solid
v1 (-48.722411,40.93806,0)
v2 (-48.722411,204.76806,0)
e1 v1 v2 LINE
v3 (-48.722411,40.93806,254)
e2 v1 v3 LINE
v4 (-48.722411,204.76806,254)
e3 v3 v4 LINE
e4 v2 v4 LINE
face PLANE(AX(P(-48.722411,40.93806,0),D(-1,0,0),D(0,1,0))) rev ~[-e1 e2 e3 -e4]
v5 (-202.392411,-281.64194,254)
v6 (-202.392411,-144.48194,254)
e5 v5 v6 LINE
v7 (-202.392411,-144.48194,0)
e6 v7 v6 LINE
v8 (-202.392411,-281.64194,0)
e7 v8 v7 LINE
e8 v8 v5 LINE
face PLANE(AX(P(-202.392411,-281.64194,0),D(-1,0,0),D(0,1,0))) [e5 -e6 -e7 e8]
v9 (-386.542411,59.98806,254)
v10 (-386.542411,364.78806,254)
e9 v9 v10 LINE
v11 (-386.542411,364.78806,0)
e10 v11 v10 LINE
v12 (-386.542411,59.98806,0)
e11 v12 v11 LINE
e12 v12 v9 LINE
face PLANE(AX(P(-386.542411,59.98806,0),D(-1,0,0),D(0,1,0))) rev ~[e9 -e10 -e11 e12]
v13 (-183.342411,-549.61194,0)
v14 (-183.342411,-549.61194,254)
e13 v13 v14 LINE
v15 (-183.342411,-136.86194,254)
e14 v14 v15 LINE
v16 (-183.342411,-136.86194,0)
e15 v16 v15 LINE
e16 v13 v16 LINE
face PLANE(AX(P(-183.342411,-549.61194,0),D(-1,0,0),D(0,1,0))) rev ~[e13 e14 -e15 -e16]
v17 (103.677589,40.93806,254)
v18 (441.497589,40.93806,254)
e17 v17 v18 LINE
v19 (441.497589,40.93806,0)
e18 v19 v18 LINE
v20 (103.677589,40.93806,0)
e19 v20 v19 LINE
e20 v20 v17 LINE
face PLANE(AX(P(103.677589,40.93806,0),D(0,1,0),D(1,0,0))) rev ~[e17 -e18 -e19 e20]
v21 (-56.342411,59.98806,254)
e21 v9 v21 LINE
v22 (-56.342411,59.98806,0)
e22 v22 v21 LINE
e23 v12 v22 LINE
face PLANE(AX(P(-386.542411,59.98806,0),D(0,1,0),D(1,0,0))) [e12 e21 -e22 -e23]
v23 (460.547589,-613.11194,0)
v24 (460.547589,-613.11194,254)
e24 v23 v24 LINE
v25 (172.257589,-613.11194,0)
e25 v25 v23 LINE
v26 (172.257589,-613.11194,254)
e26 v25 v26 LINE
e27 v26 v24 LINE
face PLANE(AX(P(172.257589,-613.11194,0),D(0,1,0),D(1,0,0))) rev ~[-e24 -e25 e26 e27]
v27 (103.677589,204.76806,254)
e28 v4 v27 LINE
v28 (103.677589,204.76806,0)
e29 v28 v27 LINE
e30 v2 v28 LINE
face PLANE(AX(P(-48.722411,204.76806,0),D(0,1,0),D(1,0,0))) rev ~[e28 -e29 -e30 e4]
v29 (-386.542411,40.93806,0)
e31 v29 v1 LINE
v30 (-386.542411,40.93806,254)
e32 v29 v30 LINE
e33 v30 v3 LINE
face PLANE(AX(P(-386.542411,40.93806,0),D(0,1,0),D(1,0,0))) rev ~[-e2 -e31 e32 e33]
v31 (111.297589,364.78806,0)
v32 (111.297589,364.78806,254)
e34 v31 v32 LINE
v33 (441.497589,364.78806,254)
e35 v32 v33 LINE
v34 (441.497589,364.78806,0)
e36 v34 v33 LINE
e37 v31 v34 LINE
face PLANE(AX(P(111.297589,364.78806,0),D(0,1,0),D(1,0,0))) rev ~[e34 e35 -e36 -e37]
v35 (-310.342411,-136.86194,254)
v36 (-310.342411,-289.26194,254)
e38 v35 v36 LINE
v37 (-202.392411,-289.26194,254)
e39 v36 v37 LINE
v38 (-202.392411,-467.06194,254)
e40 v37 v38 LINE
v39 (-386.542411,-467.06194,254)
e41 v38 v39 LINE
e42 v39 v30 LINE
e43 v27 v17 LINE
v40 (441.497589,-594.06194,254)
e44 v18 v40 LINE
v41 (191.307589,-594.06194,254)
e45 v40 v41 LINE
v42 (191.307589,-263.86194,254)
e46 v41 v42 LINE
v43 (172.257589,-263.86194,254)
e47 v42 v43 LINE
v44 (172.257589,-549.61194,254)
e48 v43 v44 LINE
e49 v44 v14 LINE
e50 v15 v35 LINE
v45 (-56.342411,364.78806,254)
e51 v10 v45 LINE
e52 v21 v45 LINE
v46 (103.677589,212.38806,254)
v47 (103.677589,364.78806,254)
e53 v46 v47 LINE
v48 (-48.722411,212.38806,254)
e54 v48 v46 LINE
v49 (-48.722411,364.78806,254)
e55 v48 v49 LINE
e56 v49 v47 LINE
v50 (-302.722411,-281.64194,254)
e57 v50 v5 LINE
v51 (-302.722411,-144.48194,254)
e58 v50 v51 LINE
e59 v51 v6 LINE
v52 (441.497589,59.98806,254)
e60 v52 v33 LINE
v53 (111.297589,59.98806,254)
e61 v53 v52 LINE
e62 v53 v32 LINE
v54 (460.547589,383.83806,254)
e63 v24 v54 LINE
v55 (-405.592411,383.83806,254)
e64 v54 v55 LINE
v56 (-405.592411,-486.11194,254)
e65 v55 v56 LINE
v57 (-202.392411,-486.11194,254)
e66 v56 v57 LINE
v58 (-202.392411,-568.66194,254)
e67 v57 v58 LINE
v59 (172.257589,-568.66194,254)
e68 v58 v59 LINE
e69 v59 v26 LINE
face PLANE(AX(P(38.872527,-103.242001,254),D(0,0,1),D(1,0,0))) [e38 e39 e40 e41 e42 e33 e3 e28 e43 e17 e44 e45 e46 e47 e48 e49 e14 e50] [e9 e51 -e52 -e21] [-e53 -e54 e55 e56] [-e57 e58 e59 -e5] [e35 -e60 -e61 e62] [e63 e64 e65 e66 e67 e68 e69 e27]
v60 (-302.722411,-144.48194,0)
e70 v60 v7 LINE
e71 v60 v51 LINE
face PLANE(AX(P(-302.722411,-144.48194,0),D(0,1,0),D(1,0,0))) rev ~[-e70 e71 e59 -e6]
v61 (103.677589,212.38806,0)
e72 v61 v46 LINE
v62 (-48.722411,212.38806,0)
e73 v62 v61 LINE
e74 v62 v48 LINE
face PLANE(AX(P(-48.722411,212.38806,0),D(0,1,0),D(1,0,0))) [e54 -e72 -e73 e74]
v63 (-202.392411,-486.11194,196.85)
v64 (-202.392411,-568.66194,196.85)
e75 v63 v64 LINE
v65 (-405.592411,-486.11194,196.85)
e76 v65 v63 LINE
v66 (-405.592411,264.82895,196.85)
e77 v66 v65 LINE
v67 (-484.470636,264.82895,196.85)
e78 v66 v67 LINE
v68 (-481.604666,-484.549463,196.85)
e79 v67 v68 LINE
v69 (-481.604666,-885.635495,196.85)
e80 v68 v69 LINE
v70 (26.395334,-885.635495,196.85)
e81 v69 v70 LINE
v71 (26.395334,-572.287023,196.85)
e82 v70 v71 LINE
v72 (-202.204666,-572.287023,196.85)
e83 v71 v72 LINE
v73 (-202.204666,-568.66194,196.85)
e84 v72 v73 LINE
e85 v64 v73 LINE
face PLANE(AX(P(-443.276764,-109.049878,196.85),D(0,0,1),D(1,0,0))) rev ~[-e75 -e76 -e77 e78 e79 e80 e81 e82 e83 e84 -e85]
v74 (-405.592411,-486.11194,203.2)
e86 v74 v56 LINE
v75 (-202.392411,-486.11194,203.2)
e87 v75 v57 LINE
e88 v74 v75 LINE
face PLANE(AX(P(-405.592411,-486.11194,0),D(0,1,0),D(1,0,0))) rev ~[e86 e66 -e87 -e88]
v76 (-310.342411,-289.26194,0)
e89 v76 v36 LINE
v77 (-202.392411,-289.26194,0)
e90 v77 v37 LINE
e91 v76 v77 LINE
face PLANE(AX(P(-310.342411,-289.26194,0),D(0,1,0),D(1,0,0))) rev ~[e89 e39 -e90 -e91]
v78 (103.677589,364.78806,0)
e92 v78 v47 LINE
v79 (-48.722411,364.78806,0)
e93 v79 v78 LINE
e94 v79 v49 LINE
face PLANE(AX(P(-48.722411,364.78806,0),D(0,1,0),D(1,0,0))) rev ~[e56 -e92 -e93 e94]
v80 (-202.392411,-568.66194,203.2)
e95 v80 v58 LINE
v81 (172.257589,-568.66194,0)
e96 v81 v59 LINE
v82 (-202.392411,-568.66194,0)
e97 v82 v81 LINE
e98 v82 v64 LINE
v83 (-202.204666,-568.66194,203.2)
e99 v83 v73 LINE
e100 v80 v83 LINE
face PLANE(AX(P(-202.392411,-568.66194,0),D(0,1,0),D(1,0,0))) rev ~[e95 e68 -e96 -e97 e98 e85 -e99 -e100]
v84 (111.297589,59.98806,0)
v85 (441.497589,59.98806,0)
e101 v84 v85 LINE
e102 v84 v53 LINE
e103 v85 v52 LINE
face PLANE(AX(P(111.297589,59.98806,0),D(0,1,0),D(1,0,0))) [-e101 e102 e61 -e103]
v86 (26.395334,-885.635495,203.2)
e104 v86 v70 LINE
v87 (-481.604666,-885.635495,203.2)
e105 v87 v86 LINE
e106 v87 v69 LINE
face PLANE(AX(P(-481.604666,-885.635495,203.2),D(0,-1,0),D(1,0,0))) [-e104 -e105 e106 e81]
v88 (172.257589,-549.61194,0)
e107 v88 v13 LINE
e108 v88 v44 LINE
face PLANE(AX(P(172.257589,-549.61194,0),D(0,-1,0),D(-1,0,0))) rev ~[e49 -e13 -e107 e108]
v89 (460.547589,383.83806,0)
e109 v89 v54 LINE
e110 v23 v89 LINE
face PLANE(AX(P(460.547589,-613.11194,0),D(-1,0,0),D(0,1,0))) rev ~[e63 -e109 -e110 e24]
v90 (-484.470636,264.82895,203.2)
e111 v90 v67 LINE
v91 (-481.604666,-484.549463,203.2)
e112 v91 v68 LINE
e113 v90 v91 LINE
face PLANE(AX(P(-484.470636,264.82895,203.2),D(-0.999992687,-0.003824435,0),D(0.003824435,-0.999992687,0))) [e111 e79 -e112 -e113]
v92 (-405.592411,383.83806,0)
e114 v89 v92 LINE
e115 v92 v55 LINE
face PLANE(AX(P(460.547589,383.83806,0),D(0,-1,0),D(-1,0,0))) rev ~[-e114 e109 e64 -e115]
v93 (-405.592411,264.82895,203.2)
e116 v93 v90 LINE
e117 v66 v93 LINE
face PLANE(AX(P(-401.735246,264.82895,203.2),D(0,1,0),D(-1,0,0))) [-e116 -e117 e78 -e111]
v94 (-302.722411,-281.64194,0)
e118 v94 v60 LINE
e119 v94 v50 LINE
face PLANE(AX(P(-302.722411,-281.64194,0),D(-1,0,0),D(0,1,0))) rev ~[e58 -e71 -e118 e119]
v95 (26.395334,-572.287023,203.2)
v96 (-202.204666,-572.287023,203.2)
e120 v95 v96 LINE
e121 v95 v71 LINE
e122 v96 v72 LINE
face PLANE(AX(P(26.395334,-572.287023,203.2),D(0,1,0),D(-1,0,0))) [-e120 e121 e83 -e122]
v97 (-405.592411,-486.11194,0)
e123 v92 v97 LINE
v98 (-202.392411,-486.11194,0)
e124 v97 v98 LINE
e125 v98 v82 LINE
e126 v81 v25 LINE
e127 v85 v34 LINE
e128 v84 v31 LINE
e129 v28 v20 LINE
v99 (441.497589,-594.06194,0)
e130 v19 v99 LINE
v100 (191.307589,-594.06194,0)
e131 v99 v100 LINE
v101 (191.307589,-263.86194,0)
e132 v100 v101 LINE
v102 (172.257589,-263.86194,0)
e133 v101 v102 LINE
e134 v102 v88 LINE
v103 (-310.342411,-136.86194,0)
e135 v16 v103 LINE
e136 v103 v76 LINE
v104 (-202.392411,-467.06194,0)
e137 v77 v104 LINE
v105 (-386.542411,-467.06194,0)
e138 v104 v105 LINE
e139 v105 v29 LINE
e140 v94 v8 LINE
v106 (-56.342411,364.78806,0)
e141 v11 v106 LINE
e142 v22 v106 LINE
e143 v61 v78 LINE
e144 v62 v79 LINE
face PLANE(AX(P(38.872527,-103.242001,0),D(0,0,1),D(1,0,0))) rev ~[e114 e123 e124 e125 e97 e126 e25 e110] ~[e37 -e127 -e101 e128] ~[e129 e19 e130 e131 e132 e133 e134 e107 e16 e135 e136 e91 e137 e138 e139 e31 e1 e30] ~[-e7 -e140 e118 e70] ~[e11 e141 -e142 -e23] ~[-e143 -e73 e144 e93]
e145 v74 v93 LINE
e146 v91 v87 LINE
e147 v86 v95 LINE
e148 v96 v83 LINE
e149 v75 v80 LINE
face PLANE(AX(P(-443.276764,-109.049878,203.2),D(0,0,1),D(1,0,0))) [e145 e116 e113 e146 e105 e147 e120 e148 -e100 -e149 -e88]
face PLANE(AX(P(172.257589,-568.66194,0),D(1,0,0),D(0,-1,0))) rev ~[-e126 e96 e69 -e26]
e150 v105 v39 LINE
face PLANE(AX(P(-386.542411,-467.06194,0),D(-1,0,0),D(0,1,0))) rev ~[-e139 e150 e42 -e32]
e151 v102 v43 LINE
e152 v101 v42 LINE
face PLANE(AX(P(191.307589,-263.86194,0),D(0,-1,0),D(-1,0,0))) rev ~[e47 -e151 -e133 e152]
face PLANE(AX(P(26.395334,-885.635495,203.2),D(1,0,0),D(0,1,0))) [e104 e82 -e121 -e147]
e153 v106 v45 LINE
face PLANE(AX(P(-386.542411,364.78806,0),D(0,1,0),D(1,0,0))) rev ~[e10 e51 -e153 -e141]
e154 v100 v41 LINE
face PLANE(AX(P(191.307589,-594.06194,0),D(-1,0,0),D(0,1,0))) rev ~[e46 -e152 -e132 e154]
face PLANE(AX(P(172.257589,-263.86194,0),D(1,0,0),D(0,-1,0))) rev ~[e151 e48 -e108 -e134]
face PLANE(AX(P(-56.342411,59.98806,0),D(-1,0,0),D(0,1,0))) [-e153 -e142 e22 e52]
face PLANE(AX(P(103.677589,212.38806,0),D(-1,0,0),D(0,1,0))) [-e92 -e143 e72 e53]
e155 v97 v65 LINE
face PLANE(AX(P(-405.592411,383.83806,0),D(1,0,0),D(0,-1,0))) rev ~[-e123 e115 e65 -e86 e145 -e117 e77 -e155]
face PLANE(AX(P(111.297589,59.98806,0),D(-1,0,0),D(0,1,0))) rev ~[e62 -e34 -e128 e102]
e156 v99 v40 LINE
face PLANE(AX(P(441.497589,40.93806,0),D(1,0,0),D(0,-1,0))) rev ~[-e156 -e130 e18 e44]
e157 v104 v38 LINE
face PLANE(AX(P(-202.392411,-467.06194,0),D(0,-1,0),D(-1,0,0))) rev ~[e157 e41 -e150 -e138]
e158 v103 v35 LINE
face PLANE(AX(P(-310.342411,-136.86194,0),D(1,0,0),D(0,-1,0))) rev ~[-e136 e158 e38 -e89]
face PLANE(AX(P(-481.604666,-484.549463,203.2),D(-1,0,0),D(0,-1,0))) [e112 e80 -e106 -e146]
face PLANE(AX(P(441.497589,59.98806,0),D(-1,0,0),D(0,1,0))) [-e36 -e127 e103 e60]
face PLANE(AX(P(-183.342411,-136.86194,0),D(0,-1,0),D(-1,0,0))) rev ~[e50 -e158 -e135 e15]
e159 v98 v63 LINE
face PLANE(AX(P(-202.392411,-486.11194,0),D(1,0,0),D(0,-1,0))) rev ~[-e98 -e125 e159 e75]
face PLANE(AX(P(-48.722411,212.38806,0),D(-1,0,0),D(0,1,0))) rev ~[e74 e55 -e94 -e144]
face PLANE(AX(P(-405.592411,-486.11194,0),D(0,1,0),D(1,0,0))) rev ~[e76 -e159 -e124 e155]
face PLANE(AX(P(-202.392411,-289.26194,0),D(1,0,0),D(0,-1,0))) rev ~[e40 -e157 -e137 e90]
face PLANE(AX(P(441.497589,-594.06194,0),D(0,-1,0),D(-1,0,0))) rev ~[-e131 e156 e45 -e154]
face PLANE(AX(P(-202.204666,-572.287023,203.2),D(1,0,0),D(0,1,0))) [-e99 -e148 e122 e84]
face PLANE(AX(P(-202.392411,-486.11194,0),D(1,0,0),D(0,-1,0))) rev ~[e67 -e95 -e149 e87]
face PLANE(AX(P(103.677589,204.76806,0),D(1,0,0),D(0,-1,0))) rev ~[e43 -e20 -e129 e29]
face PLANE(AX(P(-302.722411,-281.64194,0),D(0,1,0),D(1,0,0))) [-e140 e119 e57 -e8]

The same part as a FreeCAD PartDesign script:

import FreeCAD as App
import Part
import Sketcher

V = App.Vector
Q = App.Units.Quantity


def add_polygon(sketch, points):
    """Adds a closed chain of lines whose ends are joined by coincident constraints."""
    first, n = sketch.GeometryCount, len(points)
    for a, b in zip(points, points[1:] + points[:1]):
        sketch.addGeometry(Part.LineSegment(App.Vector(*a, 0), App.Vector(*b, 0)), False)
    for i in range(n):
        sketch.addConstraint(Sketcher.Constraint("Coincident", first + i, 2, first + (i + 1) % n, 1))

doc = App.newDocument("Part")
params = doc.addObject("Spreadsheet::Sheet", "Params")
for row, (alias, value) in enumerate([
    ("sketch1_width", "8 in"),
    ("sketch1_width2", "6 in"),
    ("sketch1_width3", "14 in"),
    ("sketch1_width4", "5 in"),
    ("sketch1_width5", "13 in"),
    ("pad1_length", "10 in"),
    ("sketch2_width", "11 in"),
    ("sketch2_width2", "20 in"),
    ("pad2_length", "0.25 in"),
    ("pad3_length", "0.25 in"),
], start=1):
    params.set(f"A{row}", alias)
    params.set(f"B{row}", "=" + value)
    params.setAlias(f"B{row}", alias)

body = doc.addObject("PartDesign::Body", "Body")

sketch1 = body.newObject("Sketcher::SketchObject", "Sketch")
sketch1.AttachmentSupport = (doc.getObject("XY_Plane"), [""])
sketch1.MapMode = "FlatFace"
add_polygon(sketch1, [(461, 384), (-406, 384), (-406, -486), (-202, -486), (-202, -569), (172, -569), (172, -613), (461, -613)])
add_polygon(sketch1, [(-202, -282), (-303, -282), (-303, -144), (-202, -144)])
add_polygon(sketch1, [(-202, -467), (-387, -467), (-387, 41), (-49, 41), (-49, 205), (104, 205), (104, 41), (441, 41), (441, -594), (191, -594), (191, -264), (172, -264), (172, -550), (-183, -550), (-183, -137), (-310, -137), (-310, -289), (-202, -289)])
add_polygon(sketch1, [(-56, 60), (-387, 60), (-387, 365), (-56, 365)])
add_polygon(sketch1, [(104, 212), (-49, 212), (-49, 365), (104, 365)])
add_polygon(sketch1, [(441, 60), (111, 60), (111, 365), (441, 365)])
sketch1.addConstraint(Sketcher.Constraint("Horizontal", 0))
sketch1.addConstraint(Sketcher.Constraint("Vertical", 1))
sketch1.addConstraint(Sketcher.Constraint("Horizontal", 2))
sketch1.addConstraint(Sketcher.Constraint("Vertical", 3))
sketch1.addConstraint(Sketcher.Constraint("Horizontal", 4))
sketch1.addConstraint(Sketcher.Constraint("Vertical", 5))
sketch1.addConstraint(Sketcher.Constraint("Horizontal", 6))
sketch1.addConstraint(Sketcher.Constraint("Vertical", 7))
sketch1.addConstraint(Sketcher.Constraint("Horizontal", 8))
sketch1.addConstraint(Sketcher.Constraint("Vertical", 9))
sketch1.addConstraint(Sketcher.Constraint("Horizontal", 10))
sketch1.addConstraint(Sketcher.Constraint("Vertical", 11))
sketch1.addConstraint(Sketcher.Constraint("Horizontal", 12))
sketch1.addConstraint(Sketcher.Constraint("Vertical", 13))
sketch1.addConstraint(Sketcher.Constraint("Horizontal", 14))
sketch1.addConstraint(Sketcher.Constraint("Vertical", 15))
sketch1.addConstraint(Sketcher.Constraint("Horizontal", 16))
sketch1.addConstraint(Sketcher.Constraint("Vertical", 17))
sketch1.addConstraint(Sketcher.Constraint("Horizontal", 18))
sketch1.addConstraint(Sketcher.Constraint("Vertical", 19))
sketch1.addConstraint(Sketcher.Constraint("Horizontal", 20))
sketch1.addConstraint(Sketcher.Constraint("Vertical", 21))
sketch1.addConstraint(Sketcher.Constraint("Horizontal", 22))
sketch1.addConstraint(Sketcher.Constraint("Vertical", 23))
sketch1.addConstraint(Sketcher.Constraint("Horizontal", 24))
sketch1.addConstraint(Sketcher.Constraint("Vertical", 25))
sketch1.addConstraint(Sketcher.Constraint("Horizontal", 26))
sketch1.addConstraint(Sketcher.Constraint("Vertical", 27))
sketch1.addConstraint(Sketcher.Constraint("Horizontal", 28))
sketch1.addConstraint(Sketcher.Constraint("Vertical", 29))
sketch1.addConstraint(Sketcher.Constraint("Horizontal", 30))
sketch1.addConstraint(Sketcher.Constraint("Vertical", 31))
sketch1.addConstraint(Sketcher.Constraint("Horizontal", 32))
sketch1.addConstraint(Sketcher.Constraint("Vertical", 33))
sketch1.addConstraint(Sketcher.Constraint("Horizontal", 34))
sketch1.addConstraint(Sketcher.Constraint("Vertical", 35))
sketch1.addConstraint(Sketcher.Constraint("Horizontal", 36))
sketch1.addConstraint(Sketcher.Constraint("Vertical", 37))
sketch1.addConstraint(Sketcher.Constraint("Horizontal", 38))
sketch1.addConstraint(Sketcher.Constraint("Vertical", 39))
sketch1.addConstraint(Sketcher.Constraint("Horizontal", 40))
sketch1.addConstraint(Sketcher.Constraint("Vertical", 41))
sketch1.addConstraint(Sketcher.Constraint("Horizontal", 14, 2, 17, 2))
sketch1.addConstraint(Sketcher.Constraint("Horizontal", 32, 2, 35, 2))
sketch1.addConstraint(Sketcher.Constraint("Horizontal", 33, 2, 38, 2))
sketch1.addConstraint(Sketcher.Constraint("Horizontal", 36, 2, 39, 2))
sketch1.addConstraint(Sketcher.Constraint("Vertical", 3, 2, 10, 2))
sketch1.addConstraint(Sketcher.Constraint("Vertical", 5, 2, 22, 2))
sketch1.addConstraint(Sketcher.Constraint("Vertical", 11, 2, 28, 2))
sketch1.addConstraint(Sketcher.Constraint("Vertical", 13, 2, 30, 2))
sketch1.addConstraint(Sketcher.Constraint("Vertical", 15, 2, 34, 2))
sketch1.addConstraint(Sketcher.Constraint("Vertical", 17, 2, 36, 2))
sketch1.addConstraint(Sketcher.Constraint("Vertical", 19, 2, 40, 2))
sketch1.addConstraint(Sketcher.Constraint("Equal", 14, 18))
sketch1.addConstraint(Sketcher.Constraint("Equal", 32, 38))
sketch1.addConstraint(Sketcher.Constraint("Equal", 40, 21))
sketch1.addConstraint(Sketcher.Constraint("Equal", 36, 27))
sketch1.addConstraint(Sketcher.Constraint("Equal", 27, 35))
sketch1.addConstraint(Sketcher.Constraint("DistanceX", 2, 1, 2, 2, Q("8 in")))
sketch1.addConstraint(Sketcher.Constraint("DistanceX", 16, 1, 16, 2, Q("6 in")))
sketch1.addConstraint(Sketcher.Constraint("DistanceX", 24, 2, 24, 1, Q("14 in")))
sketch1.addConstraint(Sketcher.Constraint("DistanceX", 26, 2, 26, 1, Q("5 in")))
sketch1.addConstraint(Sketcher.Constraint("DistanceX", 30, 2, 30, 1, Q("13 in")))
sketch1.addConstraint(Sketcher.Constraint("DistanceY", 13, 1, 13, 2, Q("20 in")))
sketch1.addConstraint(Sketcher.Constraint("DistanceY", 19, 2, 19, 1, Q("25 in")))
sketch1.addConstraint(Sketcher.Constraint("DistanceY", 29, 2, 29, 1, Q("7 in")))
sketch1.addConstraint(Sketcher.Constraint("DistanceY", 31, 1, 31, 2, Q("12 in")))
sketch1.addConstraint(Sketcher.Constraint("DistanceX", 0, 2, 0, 1, Q("34.1 in")))
sketch1.addConstraint(Sketcher.Constraint("DistanceX", 14, 1, 14, 2, Q("13.3 in")))
sketch1.addConstraint(Sketcher.Constraint("DistanceY", 9, 1, 9, 2, Q("5.4 in")))
sketch1.addConstraint(Sketcher.Constraint("DistanceY", 5, 2, 2, 2, Q("5 in")))
sketch1.addConstraint(Sketcher.Constraint("DistanceY", 3, 2, 12, 2, Q("4 in")))
sketch1.addConstraint(Sketcher.Constraint("DistanceX", 9, 2, 14, 2, Q("10 in")))
sketch1.addConstraint(Sketcher.Constraint("DistanceX", 12, 2, 24, 2, Q("8 in")))
sketch1.addConstraint(Sketcher.Constraint("DistanceX", 4, 1, 4, 2, Q("14.75 in")))
sketch1.addConstraint(Sketcher.Constraint("DistanceX", 20, 2, 20, 1, Q("9.85 in")))
sketch1.addConstraint(Sketcher.Constraint("DistanceY", 1, 2, 1, 1, Q("34.25 in")))
sketch1.addConstraint(Sketcher.Constraint("DistanceY", 3, 2, 3, 1, Q("3.25 in")))
sketch1.addConstraint(Sketcher.Constraint("DistanceY", 15, 1, 15, 2, Q("6.45 in")))
sketch1.addConstraint(Sketcher.Constraint("DistanceY", 23, 2, 23, 1, Q("11.25 in")))
sketch1.addConstraint(Sketcher.Constraint("DistanceY", 3, 2, 8, 2, Q("11.3 in")))
sketch1.addConstraint(Sketcher.Constraint("DistanceY", 15, 2, 31, 2, Q("6.3 in")))
sketch1.addConstraint(Sketcher.Constraint("DistanceX", 0, 2, -1, 1, Q("405.592411 mm")))
sketch1.addConstraint(Sketcher.Constraint("DistanceY", -1, 1, 0, 2, Q("383.83806 mm")))
sketch1.setExpression("Constraints[100]", "Params.sketch1_width")
sketch1.setExpression("Constraints[101]", "Params.sketch1_width2")
sketch1.setExpression("Constraints[102]", "Params.sketch1_width3")
sketch1.setExpression("Constraints[103]", "Params.sketch1_width4")
sketch1.setExpression("Constraints[104]", "Params.sketch1_width5")
pad1 = body.newObject("PartDesign::Pad", "Pad")
pad1.Profile = sketch1
pad1.setExpression("Length", "Params.pad1_length")

sketch2 = body.newObject("Sketcher::SketchObject", "Sketch001")
sketch2.AttachmentSupport = (doc.getObject("XY_Plane"), [""])
sketch2.MapMode = "FlatFace"
sketch2.AttachmentOffset = App.Placement(V(0, 0, 8 * 25.4), App.Rotation())
add_polygon(sketch2, [(-202, -572), (-202, -485), (-482, -485), (-482, -886), (26, -886), (26, -572)])
sketch2.addConstraint(Sketcher.Constraint("Vertical", 0))
sketch2.addConstraint(Sketcher.Constraint("Horizontal", 1))
sketch2.addConstraint(Sketcher.Constraint("Vertical", 2))
sketch2.addConstraint(Sketcher.Constraint("Horizontal", 3))
sketch2.addConstraint(Sketcher.Constraint("Vertical", 4))
sketch2.addConstraint(Sketcher.Constraint("Horizontal", 5))
sketch2.addConstraint(Sketcher.Constraint("DistanceX", 1, 2, 1, 1, Q("11 in")))
sketch2.addConstraint(Sketcher.Constraint("DistanceX", 3, 1, 3, 2, Q("20 in")))
sketch2.addConstraint(Sketcher.Constraint("DistanceY", 0, 1, 0, 2, Q("87.73756 mm")))
sketch2.addConstraint(Sketcher.Constraint("DistanceY", 2, 2, 2, 1, Q("401.086032 mm")))
sketch2.addConstraint(Sketcher.Constraint("DistanceX", 0, 2, -1, 1, Q("202.204666 mm")))
sketch2.addConstraint(Sketcher.Constraint("DistanceY", 0, 2, -1, 1, Q("484.549463 mm")))
sketch2.setExpression("Constraints[12]", "Params.sketch2_width")
sketch2.setExpression("Constraints[13]", "Params.sketch2_width2")
pad2 = body.newObject("PartDesign::Pad", "Pad001")
pad2.Profile = sketch2
pad2.setExpression("Length", "Params.pad2_length")
pad2.Reversed = True

sketch3 = body.newObject("Sketcher::SketchObject", "Sketch002")
sketch3.AttachmentSupport = (doc.getObject("XY_Plane"), [""])
sketch3.MapMode = "FlatFace"
sketch3.AttachmentOffset = App.Placement(V(0, 0, 8 * 25.4), App.Rotation())
add_polygon(sketch3, [(-484.5, 264.8), (-481.6, -484.5), (-405.6, -484.5), (-405.6, -486.1), (-401.7, 264.8)])
sketch3.addConstraint(Sketcher.Constraint("Horizontal", 1))
sketch3.addConstraint(Sketcher.Constraint("Vertical", 2))
sketch3.addConstraint(Sketcher.Constraint("Horizontal", 4))
sketch3.addConstraint(Sketcher.Constraint("DistanceX", 4, 2, 4, 1, Q("82.735389 mm")))
sketch3.addConstraint(Sketcher.Constraint("DistanceX", 1, 1, 1, 2, Q("76.012254 mm")))
sketch3.addConstraint(Sketcher.Constraint("DistanceY", 2, 2, 2, 1, Q("1.562477 mm")))
sketch3.addConstraint(Sketcher.Constraint("DistanceX", 1, 2, -1, 1, Q("405.592411 mm")))
sketch3.addConstraint(Sketcher.Constraint("DistanceY", 2, 2, -1, 1, Q("486.11194 mm")))
sketch3.addConstraint(Sketcher.Constraint("DistanceY", -1, 1, 3, 2, Q("264.82895 mm")))
sketch3.addConstraint(Sketcher.Constraint("DistanceX", 0, 2, 3, 2, Q("79.869419 mm")))
pad3 = body.newObject("PartDesign::Pad", "Pad002")
pad3.Profile = sketch3
pad3.setExpression("Length", "Params.pad3_length")
pad3.Reversed = True

doc.recompute()
